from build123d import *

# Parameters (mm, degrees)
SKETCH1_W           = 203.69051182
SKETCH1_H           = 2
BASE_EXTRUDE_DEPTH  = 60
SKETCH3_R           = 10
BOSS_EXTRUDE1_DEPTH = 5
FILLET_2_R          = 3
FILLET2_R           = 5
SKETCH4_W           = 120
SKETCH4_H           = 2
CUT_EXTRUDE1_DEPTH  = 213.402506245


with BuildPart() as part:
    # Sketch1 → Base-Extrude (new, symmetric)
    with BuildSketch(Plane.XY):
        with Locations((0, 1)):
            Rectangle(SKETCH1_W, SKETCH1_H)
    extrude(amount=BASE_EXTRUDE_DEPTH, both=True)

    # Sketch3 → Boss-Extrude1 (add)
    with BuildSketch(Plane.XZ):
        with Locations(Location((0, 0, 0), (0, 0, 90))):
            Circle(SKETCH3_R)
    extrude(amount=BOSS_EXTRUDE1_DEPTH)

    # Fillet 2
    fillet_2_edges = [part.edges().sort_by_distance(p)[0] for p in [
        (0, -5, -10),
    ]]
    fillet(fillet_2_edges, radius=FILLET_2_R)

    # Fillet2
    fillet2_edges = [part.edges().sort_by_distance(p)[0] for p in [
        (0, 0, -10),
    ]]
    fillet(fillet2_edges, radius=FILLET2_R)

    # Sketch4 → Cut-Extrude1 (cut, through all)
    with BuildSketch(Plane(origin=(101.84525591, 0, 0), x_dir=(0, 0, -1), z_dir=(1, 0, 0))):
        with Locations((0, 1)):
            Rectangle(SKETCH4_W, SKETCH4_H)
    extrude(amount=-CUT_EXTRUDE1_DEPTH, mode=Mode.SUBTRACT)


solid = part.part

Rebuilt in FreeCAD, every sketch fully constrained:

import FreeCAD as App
import Part
import Sketcher
from FreeCAD import Vector


def edges_at(feature, points):
    """Names of the edges that pass closest to the given points."""
    edges = feature.Shape.Edges
    near = lambda p: min(range(len(edges)), key=lambda i: edges[i].distToShape(Part.Vertex(*p))[0])
    return sorted({f"Edge{near(p) + 1}" for p in points})

doc = App.newDocument("Part")
body = doc.addObject("PartDesign::Body", "Body")

# Sketch on XY plane
sketch1 = body.newObject("Sketcher::SketchObject", "Sketch")
sketch1.AttachmentSupport = (doc.getObject("XY_Plane"), [""])
sketch1.MapMode = "FlatFace"
sketch1.addGeometry([
    Part.LineSegment(Vector(-101.8, 2, 0), Vector(-101.8, 0, 0)),
    Part.LineSegment(Vector(-101.8, 0, 0), Vector(101.8, 0, 0)),
    Part.LineSegment(Vector(101.8, 0, 0), Vector(101.8, 2, 0)),
    Part.LineSegment(Vector(101.8, 2, 0), Vector(-101.8, 2, 0)),
], False)
sketch1.addConstraint([
    Sketcher.Constraint("Coincident", 0, 2, 1, 1),
    Sketcher.Constraint("Coincident", 1, 2, 2, 1),
    Sketcher.Constraint("Coincident", 2, 2, 3, 1),
    Sketcher.Constraint("Coincident", 3, 2, 0, 1),
    Sketcher.Constraint("Vertical", 0),
    Sketcher.Constraint("Horizontal", 1),
    Sketcher.Constraint("Vertical", 2),
    Sketcher.Constraint("Horizontal", 3),
    Sketcher.Constraint("Symmetric", 0, 2, 1, 2, -1, 1),
    Sketcher.Constraint("DistanceY", 0, 2, 0, 1, 2.0),
    Sketcher.Constraint("DistanceX", 1, 1, 1, 2, 203.690512),
])
pad1 = body.newObject("PartDesign::Pad", "Pad")
pad1.Profile = sketch1
pad1.Length = 120
pad1.Midplane = True

# Sketch on XZ plane
sketch2 = body.newObject("Sketcher::SketchObject", "Sketch001")
sketch2.AttachmentSupport = (doc.getObject("XZ_Plane"), [""])
sketch2.MapMode = "FlatFace"
sketch2.addGeometry(Part.Circle(Vector(0, 0, 0), Vector(0, 0, 1), 10), False)
sketch2.addConstraint([
    Sketcher.Constraint("Coincident", 0, 3, -1, 1),
    Sketcher.Constraint("Diameter", 0, 20.0),
])
pad2 = body.newObject("PartDesign::Pad", "Pad001")
pad2.Profile = sketch2
pad2.Length = 5
doc.recompute()

fillet = body.newObject("PartDesign::Fillet", "Fillet")
fillet.Base = (pad2, edges_at(pad2, [(0, -5, -10)]))
fillet.Radius = 3
doc.recompute()

fillet2 = body.newObject("PartDesign::Fillet", "Fillet001")
fillet2.Base = (fillet, edges_at(fillet, [(0, 0, -10)]))
fillet2.Radius = 5

# Sketch on YZ plane
sketch3 = body.newObject("Sketcher::SketchObject", "Sketch002")
sketch3.AttachmentSupport = (doc.getObject("YZ_Plane"), [""])
sketch3.MapMode = "FlatFace"
sketch3.AttachmentOffset = App.Placement(Vector(0, 0, 101.845256), App.Rotation())
sketch3.addGeometry([
    Part.LineSegment(Vector(2, 60, 0), Vector(0, 60, 0)),
    Part.LineSegment(Vector(0, 60, 0), Vector(0, -60, 0)),
    Part.LineSegment(Vector(0, -60, 0), Vector(2, -60, 0)),
    Part.LineSegment(Vector(2, -60, 0), Vector(2, 60, 0)),
], False)
sketch3.addConstraint([
    Sketcher.Constraint("Coincident", 0, 2, 1, 1),
    Sketcher.Constraint("Coincident", 1, 2, 2, 1),
    Sketcher.Constraint("Coincident", 2, 2, 3, 1),
    Sketcher.Constraint("Coincident", 3, 2, 0, 1),
    Sketcher.Constraint("Horizontal", 0),
    Sketcher.Constraint("Vertical", 1),
    Sketcher.Constraint("Horizontal", 2),
    Sketcher.Constraint("Vertical", 3),
    Sketcher.Constraint("Symmetric", 0, 2, 1, 2, -1, 1),
    Sketcher.Constraint("DistanceX", 0, 2, 0, 1, 2.0),
    Sketcher.Constraint("DistanceY", 1, 2, 1, 1, 120.0),
])
pocket1 = body.newObject("PartDesign::Pocket", "Pocket")
pocket1.Profile = sketch3
pocket1.Type = "ThroughAll"

doc.recompute()
